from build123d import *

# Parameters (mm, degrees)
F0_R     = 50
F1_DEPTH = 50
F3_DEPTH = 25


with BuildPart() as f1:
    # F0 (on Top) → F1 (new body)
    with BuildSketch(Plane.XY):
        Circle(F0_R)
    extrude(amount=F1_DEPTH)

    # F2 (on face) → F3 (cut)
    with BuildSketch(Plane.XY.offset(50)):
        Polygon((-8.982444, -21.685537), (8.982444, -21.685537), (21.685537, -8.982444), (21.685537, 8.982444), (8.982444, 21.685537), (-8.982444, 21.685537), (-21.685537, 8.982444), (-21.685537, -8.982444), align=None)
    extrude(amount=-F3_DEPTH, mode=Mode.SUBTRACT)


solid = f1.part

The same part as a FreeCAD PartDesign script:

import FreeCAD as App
import Part
import Sketcher

V = App.Vector

doc = App.newDocument("Part")
body = doc.addObject("PartDesign::Body", "Body")

# Sketch on XY plane
sketch1 = body.newObject("Sketcher::SketchObject", "Sketch")
sketch1.AttachmentSupport = (doc.getObject("XY_Plane"), [""])
sketch1.MapMode = "FlatFace"
sketch1.addGeometry(Part.Circle(V(0, 0, 0), V(0, 0, 1), 50), False)
sketch1.addConstraint(Sketcher.Constraint("Coincident", 0, 3, -1, 1))
sketch1.addConstraint(Sketcher.Constraint("Diameter", 0, 100.0))
pad1 = body.newObject("PartDesign::Pad", "Pad")
pad1.Profile = sketch1
pad1.Length = 50

# Sketch on XY plane
sketch2 = body.newObject("Sketcher::SketchObject", "Sketch001")
sketch2.AttachmentSupport = (doc.getObject("XY_Plane"), [""])
sketch2.MapMode = "FlatFace"
sketch2.AttachmentOffset = App.Placement(V(0, 0, 50), App.Rotation())
sketch2.addGeometry(Part.LineSegment(V(-9, -22, 0), V(9, -22, 0)), False)
sketch2.addGeometry(Part.LineSegment(V(9, -22, 0), V(22, -9, 0)), False)
sketch2.addGeometry(Part.LineSegment(V(22, -9, 0), V(22, 9, 0)), False)
sketch2.addGeometry(Part.LineSegment(V(22, 9, 0), V(9, 22, 0)), False)
sketch2.addGeometry(Part.LineSegment(V(9, 22, 0), V(-9, 22, 0)), False)
sketch2.addGeometry(Part.LineSegment(V(-9, 22, 0), V(-22, 9, 0)), False)
sketch2.addGeometry(Part.LineSegment(V(-22, 9, 0), V(-22, -9, 0)), False)
sketch2.addGeometry(Part.LineSegment(V(-22, -9, 0), V(-9, -22, 0)), False)
sketch2.addConstraint(Sketcher.Constraint("Coincident", 0, 2, 1, 1))
sketch2.addConstraint(Sketcher.Constraint("Coincident", 1, 2, 2, 1))
sketch2.addConstraint(Sketcher.Constraint("Coincident", 2, 2, 3, 1))
sketch2.addConstraint(Sketcher.Constraint("Coincident", 3, 2, 4, 1))
sketch2.addConstraint(Sketcher.Constraint("Coincident", 4, 2, 5, 1))
sketch2.addConstraint(Sketcher.Constraint("Coincident", 5, 2, 6, 1))
sketch2.addConstraint(Sketcher.Constraint("Coincident", 6, 2, 7, 1))
sketch2.addConstraint(Sketcher.Constraint("Coincident", 7, 2, 0, 1))
sketch2.addConstraint(Sketcher.Constraint("Horizontal", 0))
sketch2.addConstraint(Sketcher.Constraint("Vertical", 2))
sketch2.addConstraint(Sketcher.Constraint("Horizontal", 4))
sketch2.addConstraint(Sketcher.Constraint("Vertical", 6))
sketch2.addConstraint(Sketcher.Constraint("Symmetric", 0, 2, 4, 2, -1, 1))
sketch2.addConstraint(Sketcher.Constraint("Symmetric", 1, 2, 5, 2, -1, 1))
sketch2.addConstraint(Sketcher.Constraint("Perpendicular", 1, 3))
sketch2.addConstraint(Sketcher.Constraint("Perpendicular", 5, 7))
sketch2.addConstraint(Sketcher.Constraint("Horizontal", 2, 2, 5, 2))
sketch2.addConstraint(Sketcher.Constraint("Horizontal", 1, 2, 6, 2))
sketch2.addConstraint(Sketcher.Constraint("Vertical", 0, 2, 3, 2))
sketch2.addConstraint(Sketcher.Constraint("Equal", 4, 2))
sketch2.addConstraint(Sketcher.Constraint("DistanceX", 0, 1, 0, 2, 17.964888))
sketch2.addConstraint(Sketcher.Constraint("DistanceY", 0, 2, 2, 2, 30.667981))
pocket1 = body.newObject("PartDesign::Pocket", "Pocket")
pocket1.Profile = sketch2
pocket1.Length = 25

doc.recompute()
